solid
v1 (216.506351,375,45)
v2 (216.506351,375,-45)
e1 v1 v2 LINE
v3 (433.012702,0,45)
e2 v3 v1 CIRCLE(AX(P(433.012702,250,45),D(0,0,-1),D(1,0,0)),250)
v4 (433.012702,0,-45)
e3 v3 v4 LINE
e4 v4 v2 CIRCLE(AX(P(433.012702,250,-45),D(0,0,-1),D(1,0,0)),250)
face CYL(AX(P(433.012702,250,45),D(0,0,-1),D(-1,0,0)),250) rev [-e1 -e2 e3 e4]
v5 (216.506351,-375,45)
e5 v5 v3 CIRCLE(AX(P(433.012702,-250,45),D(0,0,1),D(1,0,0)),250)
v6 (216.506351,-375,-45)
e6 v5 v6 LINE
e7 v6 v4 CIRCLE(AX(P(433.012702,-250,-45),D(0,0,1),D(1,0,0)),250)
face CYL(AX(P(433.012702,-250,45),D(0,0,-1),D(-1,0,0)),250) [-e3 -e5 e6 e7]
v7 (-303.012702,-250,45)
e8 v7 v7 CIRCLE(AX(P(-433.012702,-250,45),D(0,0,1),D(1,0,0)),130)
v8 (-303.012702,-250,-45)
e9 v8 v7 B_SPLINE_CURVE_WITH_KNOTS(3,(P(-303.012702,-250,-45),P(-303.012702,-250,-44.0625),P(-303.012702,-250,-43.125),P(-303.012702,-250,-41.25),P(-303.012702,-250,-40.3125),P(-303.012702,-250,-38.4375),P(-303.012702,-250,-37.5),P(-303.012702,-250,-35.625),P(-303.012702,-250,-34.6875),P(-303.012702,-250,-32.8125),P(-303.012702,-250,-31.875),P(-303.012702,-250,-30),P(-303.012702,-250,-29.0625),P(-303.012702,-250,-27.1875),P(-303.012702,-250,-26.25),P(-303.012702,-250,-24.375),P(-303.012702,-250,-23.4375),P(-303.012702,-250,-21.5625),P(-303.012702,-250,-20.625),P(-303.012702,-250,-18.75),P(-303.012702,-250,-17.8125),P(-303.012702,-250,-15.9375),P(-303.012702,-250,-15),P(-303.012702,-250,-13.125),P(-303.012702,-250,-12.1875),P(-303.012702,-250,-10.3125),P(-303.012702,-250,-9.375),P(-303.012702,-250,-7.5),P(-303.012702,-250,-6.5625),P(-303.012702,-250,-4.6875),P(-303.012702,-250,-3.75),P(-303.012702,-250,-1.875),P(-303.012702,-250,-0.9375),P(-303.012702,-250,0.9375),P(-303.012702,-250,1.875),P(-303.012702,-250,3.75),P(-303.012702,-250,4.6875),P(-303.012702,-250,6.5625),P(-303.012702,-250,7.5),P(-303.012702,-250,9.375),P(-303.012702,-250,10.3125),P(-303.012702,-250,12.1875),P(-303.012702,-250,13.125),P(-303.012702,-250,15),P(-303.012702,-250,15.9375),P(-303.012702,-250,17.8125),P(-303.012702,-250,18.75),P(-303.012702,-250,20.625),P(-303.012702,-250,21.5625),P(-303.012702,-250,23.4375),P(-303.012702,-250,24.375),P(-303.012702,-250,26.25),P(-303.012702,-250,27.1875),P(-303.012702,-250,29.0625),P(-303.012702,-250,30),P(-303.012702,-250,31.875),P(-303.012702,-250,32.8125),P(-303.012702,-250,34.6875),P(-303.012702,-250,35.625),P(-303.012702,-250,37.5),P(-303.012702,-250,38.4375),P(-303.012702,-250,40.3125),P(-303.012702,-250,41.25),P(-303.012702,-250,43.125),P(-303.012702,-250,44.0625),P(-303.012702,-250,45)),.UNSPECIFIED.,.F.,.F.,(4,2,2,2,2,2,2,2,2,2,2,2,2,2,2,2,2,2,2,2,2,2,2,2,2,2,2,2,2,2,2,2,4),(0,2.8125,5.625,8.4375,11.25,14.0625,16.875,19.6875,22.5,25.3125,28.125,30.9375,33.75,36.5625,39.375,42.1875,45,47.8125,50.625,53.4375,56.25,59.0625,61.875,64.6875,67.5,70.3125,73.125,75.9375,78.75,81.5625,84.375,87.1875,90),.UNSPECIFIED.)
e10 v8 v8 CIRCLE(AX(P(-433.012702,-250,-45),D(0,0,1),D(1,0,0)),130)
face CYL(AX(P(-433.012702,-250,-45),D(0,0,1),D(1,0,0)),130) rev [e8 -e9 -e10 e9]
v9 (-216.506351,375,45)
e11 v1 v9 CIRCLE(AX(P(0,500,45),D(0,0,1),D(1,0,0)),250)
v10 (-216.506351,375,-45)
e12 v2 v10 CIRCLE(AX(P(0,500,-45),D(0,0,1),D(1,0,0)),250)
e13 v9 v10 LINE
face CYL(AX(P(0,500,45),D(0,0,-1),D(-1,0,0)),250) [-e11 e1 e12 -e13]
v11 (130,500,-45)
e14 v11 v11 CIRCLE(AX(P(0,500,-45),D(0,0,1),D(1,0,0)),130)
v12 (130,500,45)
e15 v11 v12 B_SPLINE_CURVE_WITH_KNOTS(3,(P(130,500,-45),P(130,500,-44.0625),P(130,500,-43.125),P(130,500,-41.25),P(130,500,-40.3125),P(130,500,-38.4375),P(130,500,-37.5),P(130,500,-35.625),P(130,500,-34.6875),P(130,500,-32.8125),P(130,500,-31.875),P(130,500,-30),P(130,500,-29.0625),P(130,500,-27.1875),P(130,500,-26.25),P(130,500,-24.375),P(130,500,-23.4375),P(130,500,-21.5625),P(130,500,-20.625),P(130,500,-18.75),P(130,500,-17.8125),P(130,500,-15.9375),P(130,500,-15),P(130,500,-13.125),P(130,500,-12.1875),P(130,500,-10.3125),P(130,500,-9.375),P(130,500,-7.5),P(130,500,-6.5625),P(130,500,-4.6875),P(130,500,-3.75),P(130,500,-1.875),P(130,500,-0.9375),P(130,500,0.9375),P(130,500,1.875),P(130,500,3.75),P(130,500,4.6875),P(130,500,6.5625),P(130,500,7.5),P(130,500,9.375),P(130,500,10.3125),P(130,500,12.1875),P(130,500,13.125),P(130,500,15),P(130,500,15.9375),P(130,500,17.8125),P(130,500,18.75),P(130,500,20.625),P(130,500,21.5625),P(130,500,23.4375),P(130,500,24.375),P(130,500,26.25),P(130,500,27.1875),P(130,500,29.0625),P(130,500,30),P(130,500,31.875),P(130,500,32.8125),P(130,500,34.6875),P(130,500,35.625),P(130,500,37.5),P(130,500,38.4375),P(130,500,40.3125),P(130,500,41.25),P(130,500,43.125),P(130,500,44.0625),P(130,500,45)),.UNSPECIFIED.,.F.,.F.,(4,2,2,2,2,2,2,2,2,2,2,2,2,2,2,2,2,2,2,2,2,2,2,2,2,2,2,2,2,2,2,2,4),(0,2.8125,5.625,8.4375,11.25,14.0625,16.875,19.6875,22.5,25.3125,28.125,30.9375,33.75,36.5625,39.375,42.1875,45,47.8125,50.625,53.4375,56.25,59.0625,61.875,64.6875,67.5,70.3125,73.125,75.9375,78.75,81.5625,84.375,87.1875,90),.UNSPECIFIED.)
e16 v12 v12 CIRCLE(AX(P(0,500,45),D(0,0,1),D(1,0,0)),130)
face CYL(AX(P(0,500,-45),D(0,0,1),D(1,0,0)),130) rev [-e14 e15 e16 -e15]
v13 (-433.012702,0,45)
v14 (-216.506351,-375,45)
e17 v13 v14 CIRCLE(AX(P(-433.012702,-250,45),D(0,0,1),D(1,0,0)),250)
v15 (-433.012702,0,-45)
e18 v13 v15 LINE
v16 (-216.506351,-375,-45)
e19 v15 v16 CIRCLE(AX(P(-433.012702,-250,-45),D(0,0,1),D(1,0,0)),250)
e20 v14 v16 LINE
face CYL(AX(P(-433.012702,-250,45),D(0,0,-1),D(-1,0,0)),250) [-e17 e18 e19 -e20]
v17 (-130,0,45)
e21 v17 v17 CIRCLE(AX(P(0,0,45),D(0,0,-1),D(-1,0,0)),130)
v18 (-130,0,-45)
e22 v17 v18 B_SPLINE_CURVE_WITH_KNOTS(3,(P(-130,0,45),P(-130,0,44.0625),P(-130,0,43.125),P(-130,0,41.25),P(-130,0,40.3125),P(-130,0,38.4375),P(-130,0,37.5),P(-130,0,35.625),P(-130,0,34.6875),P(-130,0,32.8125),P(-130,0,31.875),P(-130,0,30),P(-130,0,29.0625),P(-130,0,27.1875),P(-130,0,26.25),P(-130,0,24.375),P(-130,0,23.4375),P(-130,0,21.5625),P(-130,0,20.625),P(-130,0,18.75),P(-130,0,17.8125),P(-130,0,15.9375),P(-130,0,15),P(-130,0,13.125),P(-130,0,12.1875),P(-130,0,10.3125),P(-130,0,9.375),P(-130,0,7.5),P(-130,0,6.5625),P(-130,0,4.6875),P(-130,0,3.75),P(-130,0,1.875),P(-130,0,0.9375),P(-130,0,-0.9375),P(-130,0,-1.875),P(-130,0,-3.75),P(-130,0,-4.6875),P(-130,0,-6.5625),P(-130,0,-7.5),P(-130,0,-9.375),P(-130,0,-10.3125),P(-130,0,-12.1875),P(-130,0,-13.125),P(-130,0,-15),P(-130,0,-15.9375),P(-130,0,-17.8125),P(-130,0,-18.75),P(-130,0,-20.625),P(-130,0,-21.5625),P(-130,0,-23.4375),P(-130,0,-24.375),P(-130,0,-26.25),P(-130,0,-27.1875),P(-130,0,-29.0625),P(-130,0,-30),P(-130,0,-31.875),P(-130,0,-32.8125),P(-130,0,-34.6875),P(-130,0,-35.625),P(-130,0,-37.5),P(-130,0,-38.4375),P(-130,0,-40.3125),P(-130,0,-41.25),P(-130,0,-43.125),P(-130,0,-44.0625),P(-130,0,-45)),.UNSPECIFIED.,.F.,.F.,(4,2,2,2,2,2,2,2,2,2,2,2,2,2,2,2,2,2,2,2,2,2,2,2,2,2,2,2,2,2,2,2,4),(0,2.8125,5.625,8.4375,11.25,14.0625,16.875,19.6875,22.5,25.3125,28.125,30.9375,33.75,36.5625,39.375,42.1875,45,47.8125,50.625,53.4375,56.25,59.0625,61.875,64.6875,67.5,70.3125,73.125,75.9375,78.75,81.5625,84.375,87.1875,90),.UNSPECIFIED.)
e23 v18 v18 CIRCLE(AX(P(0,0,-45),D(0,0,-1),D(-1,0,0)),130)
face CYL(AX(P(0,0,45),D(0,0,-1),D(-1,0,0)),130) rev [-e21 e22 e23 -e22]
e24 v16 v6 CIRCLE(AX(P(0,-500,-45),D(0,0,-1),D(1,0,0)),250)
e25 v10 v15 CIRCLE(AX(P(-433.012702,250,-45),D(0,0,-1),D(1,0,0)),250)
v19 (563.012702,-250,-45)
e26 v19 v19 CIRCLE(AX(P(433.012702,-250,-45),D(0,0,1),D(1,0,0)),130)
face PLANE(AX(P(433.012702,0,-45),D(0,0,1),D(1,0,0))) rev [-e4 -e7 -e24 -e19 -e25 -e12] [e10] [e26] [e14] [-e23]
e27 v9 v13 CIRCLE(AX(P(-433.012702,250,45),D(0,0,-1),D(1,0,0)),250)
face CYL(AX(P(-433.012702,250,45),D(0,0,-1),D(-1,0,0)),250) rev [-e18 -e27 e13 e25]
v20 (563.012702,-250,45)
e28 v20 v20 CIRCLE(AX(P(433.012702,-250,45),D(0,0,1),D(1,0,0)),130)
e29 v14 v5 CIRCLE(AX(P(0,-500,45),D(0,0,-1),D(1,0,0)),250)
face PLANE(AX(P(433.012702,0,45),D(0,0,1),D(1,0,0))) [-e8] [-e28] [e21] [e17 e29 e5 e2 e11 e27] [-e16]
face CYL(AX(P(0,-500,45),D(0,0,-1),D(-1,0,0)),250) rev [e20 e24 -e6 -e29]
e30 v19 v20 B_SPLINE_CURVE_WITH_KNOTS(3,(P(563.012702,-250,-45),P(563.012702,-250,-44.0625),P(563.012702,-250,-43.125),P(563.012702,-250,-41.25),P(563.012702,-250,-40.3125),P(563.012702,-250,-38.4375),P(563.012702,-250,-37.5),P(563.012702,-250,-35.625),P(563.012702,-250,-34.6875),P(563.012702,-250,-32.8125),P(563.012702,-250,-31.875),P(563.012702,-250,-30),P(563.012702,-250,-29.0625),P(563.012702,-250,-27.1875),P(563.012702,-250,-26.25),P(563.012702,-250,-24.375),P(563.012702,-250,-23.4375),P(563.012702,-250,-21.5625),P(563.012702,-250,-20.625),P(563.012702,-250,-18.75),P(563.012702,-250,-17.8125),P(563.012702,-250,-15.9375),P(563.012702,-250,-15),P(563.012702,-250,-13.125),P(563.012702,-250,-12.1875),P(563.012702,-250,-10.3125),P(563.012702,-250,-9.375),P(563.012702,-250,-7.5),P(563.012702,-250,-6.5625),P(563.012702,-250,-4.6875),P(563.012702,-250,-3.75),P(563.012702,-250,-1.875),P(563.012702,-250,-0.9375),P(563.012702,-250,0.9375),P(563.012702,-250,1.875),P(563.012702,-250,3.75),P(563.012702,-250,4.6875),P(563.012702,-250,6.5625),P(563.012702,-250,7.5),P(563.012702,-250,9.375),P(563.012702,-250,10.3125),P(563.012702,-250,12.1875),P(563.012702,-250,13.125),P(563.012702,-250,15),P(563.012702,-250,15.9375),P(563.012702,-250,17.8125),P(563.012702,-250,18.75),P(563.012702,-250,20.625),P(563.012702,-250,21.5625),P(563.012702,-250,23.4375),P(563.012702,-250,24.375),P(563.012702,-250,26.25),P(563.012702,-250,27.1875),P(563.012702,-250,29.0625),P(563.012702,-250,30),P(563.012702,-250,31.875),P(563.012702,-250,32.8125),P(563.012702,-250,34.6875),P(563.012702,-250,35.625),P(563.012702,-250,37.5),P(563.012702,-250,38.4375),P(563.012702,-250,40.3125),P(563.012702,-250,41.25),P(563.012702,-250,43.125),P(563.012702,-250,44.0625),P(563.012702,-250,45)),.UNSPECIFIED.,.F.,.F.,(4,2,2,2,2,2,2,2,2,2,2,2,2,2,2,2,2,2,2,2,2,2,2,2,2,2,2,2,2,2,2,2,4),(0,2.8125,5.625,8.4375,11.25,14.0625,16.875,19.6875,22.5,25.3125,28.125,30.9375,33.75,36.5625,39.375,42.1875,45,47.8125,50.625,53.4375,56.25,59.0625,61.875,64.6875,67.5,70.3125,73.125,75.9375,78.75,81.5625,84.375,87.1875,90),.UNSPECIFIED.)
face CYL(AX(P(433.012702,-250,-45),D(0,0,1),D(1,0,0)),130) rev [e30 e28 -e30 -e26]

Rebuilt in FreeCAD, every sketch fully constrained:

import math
import FreeCAD as App
import Part
import Sketcher
from FreeCAD import Vector
Q = App.Units.Quantity

doc = App.newDocument("Part")
body = doc.addObject("PartDesign::Body", "Body")

# Sketch on XY plane
sketch1 = body.newObject("Sketcher::SketchObject", "Sketch")
sketch1.AttachmentSupport = (doc.getObject("XY_Plane"), [""])
sketch1.MapMode = "FlatFace"
sketch1.addGeometry([
    Part.ArcOfCircle(Part.Circle(Vector(-433.012702, -250, 0), Vector(0, 0, 1), 250), math.radians(90), math.radians(330)),  # 0
    Part.ArcOfCircle(Part.Circle(Vector(0, -500, 0), Vector(0, 0, 1), 250), math.radians(30), math.radians(150)),  # 1
    Part.ArcOfCircle(Part.Circle(Vector(433.012702, -250, 0), Vector(0, 0, 1), 250), math.radians(-150), math.radians(90)),  # 2
    Part.ArcOfCircle(Part.Circle(Vector(433.012702, 250, 0), Vector(0, 0, 1), 250), math.radians(150), math.radians(270)),  # 3
    Part.ArcOfCircle(Part.Circle(Vector(0, 500, 0), Vector(0, 0, 1), 250), math.radians(-30), math.radians(210)),  # 4
    Part.ArcOfCircle(Part.Circle(Vector(-433.012702, 250, 0), Vector(0, 0, 1), 250), math.radians(-90), math.radians(30)),  # 5
], False)
sketch1.addConstraint([
    Sketcher.Constraint("Tangent", 0, 2, 1, 2),
    Sketcher.Constraint("Tangent", 1, 1, 2, 1),
    Sketcher.Constraint("Tangent", 2, 2, 3, 2),
    Sketcher.Constraint("Tangent", 3, 1, 4, 1),
    Sketcher.Constraint("Tangent", 4, 2, 5, 2),
    Sketcher.Constraint("Tangent", 5, 1, 0, 1),
    Sketcher.Constraint("Equal", 0, 1),
    Sketcher.Constraint("Equal", 1, 2),
    Sketcher.Constraint("Equal", 2, 3),
    Sketcher.Constraint("Equal", 3, 4),
    Sketcher.Constraint("Equal", 4, 5),
    Sketcher.Constraint("Symmetric", 0, 3, 3, 3, -1, 1),
    Sketcher.Constraint("Symmetric", 0, 3, 2, 3, -2),
    Sketcher.Constraint("PointOnObject", 4, 3, -2),
    Sketcher.Constraint("Radius", 0, Q("250 mm")),
    Sketcher.Constraint("DistanceY", 1, 3, -1, 1, Q("500 mm")),
])
pad1 = body.newObject("PartDesign::Pad", "Pad")
pad1.Profile = sketch1
pad1.Length = 90
pad1.Midplane = True

# Sketch on XY plane
sketch2 = body.newObject("Sketcher::SketchObject", "Sketch001")
sketch2.AttachmentSupport = (doc.getObject("XY_Plane"), [""])
sketch2.MapMode = "FlatFace"
sketch2.AttachmentOffset = App.Placement(Vector(0, 0, -45), App.Rotation())
sketch2.addGeometry(Part.Circle(Vector(0, 0, 0), Vector(0, 0, 1), 130), False)
sketch2.addConstraint([
    Sketcher.Constraint("Coincident", 0, 3, -1, 1),
    Sketcher.Constraint("Diameter", 0, Q("260 mm")),
])
pocket1 = body.newObject("PartDesign::Pocket", "Pocket")
pocket1.Profile = sketch2
pocket1.Type = "ThroughAll"
pocket1.Reversed = True

# Sketch on XY plane
sketch3 = body.newObject("Sketcher::SketchObject", "Sketch002")
sketch3.AttachmentSupport = (doc.getObject("XY_Plane"), [""])
sketch3.MapMode = "FlatFace"
sketch3.AttachmentOffset = App.Placement(Vector(0, 0, 45), App.Rotation())
sketch3.addGeometry([
    Part.Circle(Vector(-433.012702, -250, 0), Vector(0, 0, 1), 130),
    Part.Circle(Vector(433.012702, -250, 0), Vector(0, 0, 1), 130),
    Part.Circle(Vector(0, 500, 0), Vector(0, 0, 1), 130),
], False)
sketch3.addConstraint([
    Sketcher.Constraint("Equal", 0, 1),
    Sketcher.Constraint("Equal", 1, 2),
    Sketcher.Constraint("Symmetric", 0, 3, 1, 3, -2),
    Sketcher.Constraint("PointOnObject", 2, 3, -2),
    Sketcher.Constraint("Diameter", 0, Q("260 mm")),
    Sketcher.Constraint("DistanceY", 0, 3, -1, 1, Q("250 mm")),
    Sketcher.Constraint("DistanceY", -1, 1, 2, 3, Q("500 mm")),
    Sketcher.Constraint("DistanceX", 0, 3, -1, 1, Q("433.012702 mm")),
])
pocket2 = body.newObject("PartDesign::Pocket", "Pocket001")
pocket2.Profile = sketch3
pocket2.Type = "ThroughAll"

doc.recompute()
